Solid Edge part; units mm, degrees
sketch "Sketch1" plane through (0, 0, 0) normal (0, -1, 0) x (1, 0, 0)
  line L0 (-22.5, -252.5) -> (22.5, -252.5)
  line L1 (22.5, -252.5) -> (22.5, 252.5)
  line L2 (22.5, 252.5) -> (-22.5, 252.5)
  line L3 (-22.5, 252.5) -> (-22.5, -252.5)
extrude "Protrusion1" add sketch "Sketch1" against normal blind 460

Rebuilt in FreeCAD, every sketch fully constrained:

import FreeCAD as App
import Part
import Sketcher
from FreeCAD import Vector
Q = App.Units.Quantity

doc = App.newDocument("Part")
body = doc.addObject("PartDesign::Body", "Body")

# Sketch on XZ plane
sketch1 = body.newObject("Sketcher::SketchObject", "Sketch")
sketch1.AttachmentSupport = (doc.getObject("XZ_Plane"), [""])
sketch1.MapMode = "FlatFace"
sketch1.addGeometry(Part.LineSegment(Vector(-22.5, 252.5, 0), Vector(-22.5, -252.5, 0)), False)
sketch1.addGeometry(Part.LineSegment(Vector(-22.5, -252.5, 0), Vector(22.5, -252.5, 0)), False)
sketch1.addGeometry(Part.LineSegment(Vector(22.5, -252.5, 0), Vector(22.5, 252.5, 0)), False)
sketch1.addGeometry(Part.LineSegment(Vector(22.5, 252.5, 0), Vector(-22.5, 252.5, 0)), False)
sketch1.addConstraint(Sketcher.Constraint("Coincident", 0, 2, 1, 1))
sketch1.addConstraint(Sketcher.Constraint("Coincident", 1, 2, 2, 1))
sketch1.addConstraint(Sketcher.Constraint("Coincident", 2, 2, 3, 1))
sketch1.addConstraint(Sketcher.Constraint("Coincident", 3, 2, 0, 1))
sketch1.addConstraint(Sketcher.Constraint("Vertical", 0))
sketch1.addConstraint(Sketcher.Constraint("Horizontal", 1))
sketch1.addConstraint(Sketcher.Constraint("Vertical", 2))
sketch1.addConstraint(Sketcher.Constraint("Horizontal", 3))
sketch1.addConstraint(Sketcher.Constraint("Symmetric", 0, 2, 2, 2, -1, 1))
sketch1.addConstraint(Sketcher.Constraint("DistanceX", 1, 1, 1, 2, Q("45 mm")))
sketch1.addConstraint(Sketcher.Constraint("DistanceY", 0, 2, 0, 1, Q("505 mm")))
pad1 = body.newObject("PartDesign::Pad", "Pad")
pad1.Profile = sketch1
pad1.Length = 460
pad1.Reversed = True

doc.recompute()
